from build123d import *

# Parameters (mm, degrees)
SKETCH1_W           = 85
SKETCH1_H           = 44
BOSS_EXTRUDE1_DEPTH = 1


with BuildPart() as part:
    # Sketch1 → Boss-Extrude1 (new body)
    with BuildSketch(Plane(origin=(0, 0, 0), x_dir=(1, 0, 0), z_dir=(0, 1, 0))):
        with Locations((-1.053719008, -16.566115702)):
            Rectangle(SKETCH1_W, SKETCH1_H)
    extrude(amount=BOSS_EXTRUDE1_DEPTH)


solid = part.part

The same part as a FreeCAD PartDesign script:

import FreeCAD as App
import Part
import Sketcher

V = App.Vector
Q = App.Units.Quantity

doc = App.newDocument("Part")
body = doc.addObject("PartDesign::Body", "Body")

sketch1 = body.newObject("Sketcher::SketchObject", "Sketch")
sketch1.AttachmentSupport = (doc.getObject("XZ_Plane"), [""])
sketch1.MapMode = "FlatFace"
sketch1.addGeometry(Part.LineSegment(V(-44, -5, 0), V(-44, 39, 0)), False)
sketch1.addGeometry(Part.LineSegment(V(-44, 39, 0), V(41, 39, 0)), False)
sketch1.addGeometry(Part.LineSegment(V(41, 39, 0), V(41, -5, 0)), False)
sketch1.addGeometry(Part.LineSegment(V(41, -5, 0), V(-44, -5, 0)), False)
sketch1.addConstraint(Sketcher.Constraint("Coincident", 0, 2, 1, 1))
sketch1.addConstraint(Sketcher.Constraint("Coincident", 1, 2, 2, 1))
sketch1.addConstraint(Sketcher.Constraint("Coincident", 2, 2, 3, 1))
sketch1.addConstraint(Sketcher.Constraint("Coincident", 3, 2, 0, 1))
sketch1.addConstraint(Sketcher.Constraint("Vertical", 0))
sketch1.addConstraint(Sketcher.Constraint("Horizontal", 1))
sketch1.addConstraint(Sketcher.Constraint("Vertical", 2))
sketch1.addConstraint(Sketcher.Constraint("Horizontal", 3))
sketch1.addConstraint(Sketcher.Constraint("DistanceX", 1, 1, 1, 2, Q("85 mm")))
sketch1.addConstraint(Sketcher.Constraint("DistanceY", 0, 1, 0, 2, Q("44 mm")))
sketch1.addConstraint(Sketcher.Constraint("DistanceX", 0, 2, -1, 1, Q("43.553719 mm")))
sketch1.addConstraint(Sketcher.Constraint("DistanceY", -1, 1, 0, 2, Q("38.566116 mm")))
pad1 = body.newObject("PartDesign::Pad", "Pad")
pad1.Profile = sketch1
pad1.Length = 1
pad1.Reversed = True

doc.recompute()
